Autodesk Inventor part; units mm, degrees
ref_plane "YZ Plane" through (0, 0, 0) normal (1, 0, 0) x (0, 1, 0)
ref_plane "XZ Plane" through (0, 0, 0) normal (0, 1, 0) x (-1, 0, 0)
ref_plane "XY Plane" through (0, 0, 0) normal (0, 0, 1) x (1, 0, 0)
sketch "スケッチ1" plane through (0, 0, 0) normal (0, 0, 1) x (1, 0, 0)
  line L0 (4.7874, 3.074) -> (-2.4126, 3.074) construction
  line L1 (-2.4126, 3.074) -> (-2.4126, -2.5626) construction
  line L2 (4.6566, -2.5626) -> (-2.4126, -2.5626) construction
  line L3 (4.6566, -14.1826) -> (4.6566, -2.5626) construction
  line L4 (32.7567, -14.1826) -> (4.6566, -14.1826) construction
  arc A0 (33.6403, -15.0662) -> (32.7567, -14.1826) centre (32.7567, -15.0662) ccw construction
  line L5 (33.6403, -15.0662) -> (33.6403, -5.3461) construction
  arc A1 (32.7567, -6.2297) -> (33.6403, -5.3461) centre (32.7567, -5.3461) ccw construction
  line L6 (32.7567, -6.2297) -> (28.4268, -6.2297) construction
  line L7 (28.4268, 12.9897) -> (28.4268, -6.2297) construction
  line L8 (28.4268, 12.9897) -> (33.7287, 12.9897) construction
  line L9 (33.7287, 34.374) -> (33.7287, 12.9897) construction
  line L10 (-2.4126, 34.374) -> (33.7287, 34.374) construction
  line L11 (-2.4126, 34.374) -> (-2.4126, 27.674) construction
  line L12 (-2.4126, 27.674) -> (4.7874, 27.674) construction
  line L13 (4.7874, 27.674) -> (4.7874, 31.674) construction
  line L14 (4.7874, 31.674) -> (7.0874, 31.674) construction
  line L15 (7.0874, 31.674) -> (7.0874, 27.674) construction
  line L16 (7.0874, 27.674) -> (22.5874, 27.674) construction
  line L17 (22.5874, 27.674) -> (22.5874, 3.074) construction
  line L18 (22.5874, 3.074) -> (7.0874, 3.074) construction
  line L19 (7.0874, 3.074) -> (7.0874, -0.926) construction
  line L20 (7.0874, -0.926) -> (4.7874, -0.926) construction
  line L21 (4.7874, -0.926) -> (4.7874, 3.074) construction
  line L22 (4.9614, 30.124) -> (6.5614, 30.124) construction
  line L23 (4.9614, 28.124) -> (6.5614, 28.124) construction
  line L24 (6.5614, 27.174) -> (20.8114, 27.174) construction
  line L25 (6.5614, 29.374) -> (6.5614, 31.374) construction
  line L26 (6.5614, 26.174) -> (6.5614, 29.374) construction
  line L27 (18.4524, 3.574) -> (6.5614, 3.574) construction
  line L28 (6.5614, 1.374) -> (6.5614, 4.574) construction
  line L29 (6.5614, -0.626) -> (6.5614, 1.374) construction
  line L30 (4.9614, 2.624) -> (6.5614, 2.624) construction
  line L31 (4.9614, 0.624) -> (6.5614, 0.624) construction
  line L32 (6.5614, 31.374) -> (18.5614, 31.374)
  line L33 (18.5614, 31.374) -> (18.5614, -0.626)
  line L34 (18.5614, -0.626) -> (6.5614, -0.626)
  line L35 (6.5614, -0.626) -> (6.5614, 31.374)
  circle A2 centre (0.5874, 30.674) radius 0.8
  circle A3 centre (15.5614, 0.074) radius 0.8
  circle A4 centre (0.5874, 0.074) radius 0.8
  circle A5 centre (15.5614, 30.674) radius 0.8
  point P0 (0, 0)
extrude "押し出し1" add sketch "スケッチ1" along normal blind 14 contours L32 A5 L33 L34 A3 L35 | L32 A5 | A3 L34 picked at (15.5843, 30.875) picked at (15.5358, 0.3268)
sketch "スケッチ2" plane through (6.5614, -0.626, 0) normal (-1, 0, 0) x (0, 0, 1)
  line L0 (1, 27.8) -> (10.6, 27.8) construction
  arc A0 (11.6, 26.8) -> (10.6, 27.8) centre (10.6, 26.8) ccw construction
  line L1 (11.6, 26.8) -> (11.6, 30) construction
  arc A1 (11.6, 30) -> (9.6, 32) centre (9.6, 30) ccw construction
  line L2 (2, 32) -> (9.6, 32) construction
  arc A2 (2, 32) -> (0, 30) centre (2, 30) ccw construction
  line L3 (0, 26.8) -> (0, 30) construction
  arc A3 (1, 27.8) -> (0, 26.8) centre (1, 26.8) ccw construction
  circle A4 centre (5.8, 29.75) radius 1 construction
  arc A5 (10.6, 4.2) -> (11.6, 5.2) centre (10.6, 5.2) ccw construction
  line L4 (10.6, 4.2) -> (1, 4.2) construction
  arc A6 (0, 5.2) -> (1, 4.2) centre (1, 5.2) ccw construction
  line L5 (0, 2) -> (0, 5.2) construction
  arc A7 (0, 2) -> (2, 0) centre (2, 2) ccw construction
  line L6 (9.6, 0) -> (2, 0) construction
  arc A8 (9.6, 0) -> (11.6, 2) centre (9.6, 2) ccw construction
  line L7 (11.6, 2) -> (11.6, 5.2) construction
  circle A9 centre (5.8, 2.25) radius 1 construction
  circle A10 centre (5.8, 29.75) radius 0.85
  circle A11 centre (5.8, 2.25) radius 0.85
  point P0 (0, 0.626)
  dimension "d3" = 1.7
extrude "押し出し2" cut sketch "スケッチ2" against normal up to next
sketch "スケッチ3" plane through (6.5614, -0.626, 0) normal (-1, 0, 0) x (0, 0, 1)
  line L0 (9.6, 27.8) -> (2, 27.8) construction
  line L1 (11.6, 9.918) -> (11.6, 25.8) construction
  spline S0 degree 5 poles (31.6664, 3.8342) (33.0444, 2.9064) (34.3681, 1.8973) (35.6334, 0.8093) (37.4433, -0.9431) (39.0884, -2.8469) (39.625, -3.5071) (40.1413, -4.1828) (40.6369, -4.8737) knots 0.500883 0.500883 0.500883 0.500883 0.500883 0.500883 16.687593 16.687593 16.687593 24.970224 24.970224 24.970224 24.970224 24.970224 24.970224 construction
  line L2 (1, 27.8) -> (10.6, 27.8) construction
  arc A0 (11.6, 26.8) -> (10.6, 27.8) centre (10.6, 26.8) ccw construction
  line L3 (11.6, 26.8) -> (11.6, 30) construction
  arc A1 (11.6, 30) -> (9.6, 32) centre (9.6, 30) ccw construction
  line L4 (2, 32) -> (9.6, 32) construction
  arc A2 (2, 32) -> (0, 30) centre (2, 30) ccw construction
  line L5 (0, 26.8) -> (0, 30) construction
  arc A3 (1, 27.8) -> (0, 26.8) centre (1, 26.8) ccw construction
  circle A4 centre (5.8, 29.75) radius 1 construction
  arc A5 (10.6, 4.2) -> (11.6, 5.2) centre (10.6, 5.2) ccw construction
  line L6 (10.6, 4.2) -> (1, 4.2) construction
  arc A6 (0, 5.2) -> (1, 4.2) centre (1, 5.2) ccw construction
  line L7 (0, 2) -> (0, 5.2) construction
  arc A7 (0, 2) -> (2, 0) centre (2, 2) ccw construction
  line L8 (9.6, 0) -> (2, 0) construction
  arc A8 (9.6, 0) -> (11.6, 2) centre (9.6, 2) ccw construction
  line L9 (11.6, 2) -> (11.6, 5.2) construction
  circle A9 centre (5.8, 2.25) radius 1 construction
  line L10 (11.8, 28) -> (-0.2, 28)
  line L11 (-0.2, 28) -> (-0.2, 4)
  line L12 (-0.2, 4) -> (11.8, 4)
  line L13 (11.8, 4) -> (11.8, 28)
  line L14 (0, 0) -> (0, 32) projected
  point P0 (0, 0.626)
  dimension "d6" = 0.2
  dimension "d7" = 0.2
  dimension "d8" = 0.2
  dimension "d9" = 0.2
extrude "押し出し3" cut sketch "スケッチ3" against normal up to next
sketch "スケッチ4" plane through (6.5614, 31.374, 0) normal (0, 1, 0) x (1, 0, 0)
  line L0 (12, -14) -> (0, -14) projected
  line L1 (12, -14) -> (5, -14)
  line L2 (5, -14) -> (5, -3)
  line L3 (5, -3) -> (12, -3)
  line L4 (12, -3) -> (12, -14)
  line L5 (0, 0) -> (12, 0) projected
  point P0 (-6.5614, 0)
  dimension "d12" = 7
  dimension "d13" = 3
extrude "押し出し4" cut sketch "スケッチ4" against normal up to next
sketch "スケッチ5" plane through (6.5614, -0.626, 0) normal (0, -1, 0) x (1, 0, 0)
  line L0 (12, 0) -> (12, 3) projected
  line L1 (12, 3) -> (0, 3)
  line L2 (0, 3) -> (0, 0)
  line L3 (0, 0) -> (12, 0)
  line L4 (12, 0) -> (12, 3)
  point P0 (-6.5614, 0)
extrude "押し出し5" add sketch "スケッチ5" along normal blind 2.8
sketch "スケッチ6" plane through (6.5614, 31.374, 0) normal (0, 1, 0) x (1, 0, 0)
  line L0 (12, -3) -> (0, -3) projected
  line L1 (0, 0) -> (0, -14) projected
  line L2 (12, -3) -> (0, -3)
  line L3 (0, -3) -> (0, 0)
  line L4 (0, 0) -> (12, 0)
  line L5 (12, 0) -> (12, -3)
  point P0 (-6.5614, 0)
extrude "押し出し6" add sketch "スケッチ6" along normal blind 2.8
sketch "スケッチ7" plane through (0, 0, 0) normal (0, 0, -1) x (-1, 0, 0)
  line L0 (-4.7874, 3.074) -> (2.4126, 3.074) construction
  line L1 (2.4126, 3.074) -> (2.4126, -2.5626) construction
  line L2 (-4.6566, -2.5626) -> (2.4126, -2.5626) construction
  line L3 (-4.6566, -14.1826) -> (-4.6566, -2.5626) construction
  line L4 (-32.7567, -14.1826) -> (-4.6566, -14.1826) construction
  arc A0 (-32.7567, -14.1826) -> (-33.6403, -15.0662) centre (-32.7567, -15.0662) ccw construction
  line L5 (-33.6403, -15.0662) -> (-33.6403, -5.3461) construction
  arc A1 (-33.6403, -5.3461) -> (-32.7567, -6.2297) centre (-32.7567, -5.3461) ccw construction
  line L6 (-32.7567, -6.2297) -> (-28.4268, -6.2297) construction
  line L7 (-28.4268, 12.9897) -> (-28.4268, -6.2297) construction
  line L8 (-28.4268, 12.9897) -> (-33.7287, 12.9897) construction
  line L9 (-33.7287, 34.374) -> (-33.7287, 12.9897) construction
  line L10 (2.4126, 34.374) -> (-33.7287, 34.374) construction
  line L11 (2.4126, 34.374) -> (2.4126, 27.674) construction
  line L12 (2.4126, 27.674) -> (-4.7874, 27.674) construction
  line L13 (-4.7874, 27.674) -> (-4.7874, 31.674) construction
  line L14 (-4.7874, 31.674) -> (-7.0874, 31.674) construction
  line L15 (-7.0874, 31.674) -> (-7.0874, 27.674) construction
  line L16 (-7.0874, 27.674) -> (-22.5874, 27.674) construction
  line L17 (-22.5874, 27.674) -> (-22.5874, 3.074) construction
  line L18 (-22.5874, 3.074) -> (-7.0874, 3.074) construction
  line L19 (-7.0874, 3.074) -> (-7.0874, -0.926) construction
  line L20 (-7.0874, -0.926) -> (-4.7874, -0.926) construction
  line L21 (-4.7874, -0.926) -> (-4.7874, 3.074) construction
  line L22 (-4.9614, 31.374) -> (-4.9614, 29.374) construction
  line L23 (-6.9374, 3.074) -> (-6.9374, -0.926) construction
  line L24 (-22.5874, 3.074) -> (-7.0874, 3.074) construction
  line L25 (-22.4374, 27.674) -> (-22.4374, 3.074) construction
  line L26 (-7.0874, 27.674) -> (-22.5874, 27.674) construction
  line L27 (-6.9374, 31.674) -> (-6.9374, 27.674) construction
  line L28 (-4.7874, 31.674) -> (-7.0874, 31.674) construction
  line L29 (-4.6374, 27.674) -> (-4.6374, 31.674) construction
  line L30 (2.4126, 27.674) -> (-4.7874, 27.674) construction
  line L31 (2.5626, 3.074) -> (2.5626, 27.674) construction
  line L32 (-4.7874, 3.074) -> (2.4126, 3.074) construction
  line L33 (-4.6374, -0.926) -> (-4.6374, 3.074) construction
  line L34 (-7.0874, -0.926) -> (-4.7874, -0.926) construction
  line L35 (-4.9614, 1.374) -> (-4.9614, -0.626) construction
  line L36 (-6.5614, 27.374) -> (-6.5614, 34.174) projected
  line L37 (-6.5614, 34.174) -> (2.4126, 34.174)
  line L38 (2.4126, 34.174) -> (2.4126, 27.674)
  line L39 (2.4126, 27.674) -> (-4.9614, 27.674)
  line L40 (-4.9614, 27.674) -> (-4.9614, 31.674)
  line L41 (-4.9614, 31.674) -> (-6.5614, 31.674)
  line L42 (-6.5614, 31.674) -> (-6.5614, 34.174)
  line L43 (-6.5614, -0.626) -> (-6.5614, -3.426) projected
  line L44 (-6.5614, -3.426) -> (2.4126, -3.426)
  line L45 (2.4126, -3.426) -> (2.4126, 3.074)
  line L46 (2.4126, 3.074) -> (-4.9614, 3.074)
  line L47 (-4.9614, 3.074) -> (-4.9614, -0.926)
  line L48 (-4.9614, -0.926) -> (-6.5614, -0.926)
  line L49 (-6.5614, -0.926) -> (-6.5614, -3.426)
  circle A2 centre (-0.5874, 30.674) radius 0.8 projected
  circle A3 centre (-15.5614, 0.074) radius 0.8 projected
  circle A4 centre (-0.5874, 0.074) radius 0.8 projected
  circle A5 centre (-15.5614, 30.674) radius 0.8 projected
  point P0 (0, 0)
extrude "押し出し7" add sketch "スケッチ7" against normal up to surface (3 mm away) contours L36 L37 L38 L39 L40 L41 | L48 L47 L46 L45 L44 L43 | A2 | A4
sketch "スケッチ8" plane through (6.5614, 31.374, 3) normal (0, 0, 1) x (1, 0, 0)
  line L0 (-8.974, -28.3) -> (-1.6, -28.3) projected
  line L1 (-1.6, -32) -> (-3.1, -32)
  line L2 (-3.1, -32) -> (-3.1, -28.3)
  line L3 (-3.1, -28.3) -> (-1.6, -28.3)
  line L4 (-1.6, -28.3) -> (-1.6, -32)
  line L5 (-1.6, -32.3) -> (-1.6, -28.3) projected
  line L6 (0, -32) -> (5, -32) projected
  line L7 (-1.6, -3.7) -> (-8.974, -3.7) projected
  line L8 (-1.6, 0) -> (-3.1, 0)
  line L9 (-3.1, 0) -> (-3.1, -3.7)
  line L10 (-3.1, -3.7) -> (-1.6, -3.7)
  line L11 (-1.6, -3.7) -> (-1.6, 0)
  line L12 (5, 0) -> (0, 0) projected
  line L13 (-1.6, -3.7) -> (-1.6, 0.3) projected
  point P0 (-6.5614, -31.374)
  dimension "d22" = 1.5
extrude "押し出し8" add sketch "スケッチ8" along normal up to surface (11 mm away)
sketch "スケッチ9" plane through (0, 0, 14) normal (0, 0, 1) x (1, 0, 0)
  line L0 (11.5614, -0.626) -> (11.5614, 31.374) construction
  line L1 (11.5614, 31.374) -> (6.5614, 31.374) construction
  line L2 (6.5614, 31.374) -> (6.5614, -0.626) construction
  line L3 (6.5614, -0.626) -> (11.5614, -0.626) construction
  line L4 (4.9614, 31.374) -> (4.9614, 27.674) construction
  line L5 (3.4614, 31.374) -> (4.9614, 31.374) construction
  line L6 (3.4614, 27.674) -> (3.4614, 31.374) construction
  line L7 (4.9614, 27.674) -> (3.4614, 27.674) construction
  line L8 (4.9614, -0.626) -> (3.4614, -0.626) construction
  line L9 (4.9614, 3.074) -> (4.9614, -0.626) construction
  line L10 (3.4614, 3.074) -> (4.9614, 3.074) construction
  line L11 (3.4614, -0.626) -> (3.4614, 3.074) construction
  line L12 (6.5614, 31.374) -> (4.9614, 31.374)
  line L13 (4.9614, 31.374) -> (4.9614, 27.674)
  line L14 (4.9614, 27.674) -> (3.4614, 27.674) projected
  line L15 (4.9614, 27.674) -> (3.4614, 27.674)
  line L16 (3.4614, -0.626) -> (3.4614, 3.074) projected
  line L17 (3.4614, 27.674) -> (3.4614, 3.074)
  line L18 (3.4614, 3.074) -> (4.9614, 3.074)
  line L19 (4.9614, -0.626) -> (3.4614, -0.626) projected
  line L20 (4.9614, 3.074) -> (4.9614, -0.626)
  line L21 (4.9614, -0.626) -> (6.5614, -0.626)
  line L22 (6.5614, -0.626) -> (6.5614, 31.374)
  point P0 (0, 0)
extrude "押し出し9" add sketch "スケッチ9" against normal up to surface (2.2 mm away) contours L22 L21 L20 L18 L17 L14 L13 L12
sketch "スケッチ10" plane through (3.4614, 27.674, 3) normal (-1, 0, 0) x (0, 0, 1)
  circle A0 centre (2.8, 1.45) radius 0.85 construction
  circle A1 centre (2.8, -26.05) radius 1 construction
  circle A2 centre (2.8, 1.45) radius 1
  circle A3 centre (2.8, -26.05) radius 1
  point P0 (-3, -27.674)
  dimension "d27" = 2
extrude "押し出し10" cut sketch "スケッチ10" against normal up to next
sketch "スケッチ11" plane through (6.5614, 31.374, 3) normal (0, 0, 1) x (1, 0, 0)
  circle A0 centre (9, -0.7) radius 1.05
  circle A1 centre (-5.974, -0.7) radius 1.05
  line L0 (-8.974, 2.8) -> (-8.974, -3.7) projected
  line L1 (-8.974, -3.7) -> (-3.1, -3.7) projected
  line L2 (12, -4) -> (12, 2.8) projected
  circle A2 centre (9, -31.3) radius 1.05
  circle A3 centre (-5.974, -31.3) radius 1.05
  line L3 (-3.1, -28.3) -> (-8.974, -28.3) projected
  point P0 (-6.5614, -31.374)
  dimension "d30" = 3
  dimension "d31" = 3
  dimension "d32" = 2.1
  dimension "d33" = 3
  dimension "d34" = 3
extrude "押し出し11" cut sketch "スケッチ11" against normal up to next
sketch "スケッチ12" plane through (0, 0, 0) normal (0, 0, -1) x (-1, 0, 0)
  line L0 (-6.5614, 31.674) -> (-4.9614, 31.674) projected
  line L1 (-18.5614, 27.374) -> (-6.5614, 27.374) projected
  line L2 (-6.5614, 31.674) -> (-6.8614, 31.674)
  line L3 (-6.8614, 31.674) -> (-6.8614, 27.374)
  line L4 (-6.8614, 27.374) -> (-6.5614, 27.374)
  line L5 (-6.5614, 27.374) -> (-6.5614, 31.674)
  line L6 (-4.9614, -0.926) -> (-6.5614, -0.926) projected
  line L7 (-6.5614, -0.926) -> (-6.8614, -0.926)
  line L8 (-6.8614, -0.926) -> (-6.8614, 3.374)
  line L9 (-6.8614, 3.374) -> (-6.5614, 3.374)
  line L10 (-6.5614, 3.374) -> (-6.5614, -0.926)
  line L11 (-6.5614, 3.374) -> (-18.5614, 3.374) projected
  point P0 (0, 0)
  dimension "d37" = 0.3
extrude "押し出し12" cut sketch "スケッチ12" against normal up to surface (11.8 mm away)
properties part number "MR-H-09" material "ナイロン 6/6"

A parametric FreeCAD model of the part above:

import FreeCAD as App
import Part
import Sketcher
Q = App.Units.Quantity


def add_polygon(sketch, points):
    """Adds a closed chain of lines whose ends are joined by coincident constraints."""
    first, n = sketch.GeometryCount, len(points)
    for a, b in zip(points, points[1:] + points[:1]):
        sketch.addGeometry(Part.LineSegment(App.Vector(*a, 0), App.Vector(*b, 0)), False)
    for i in range(n):
        sketch.addConstraint(Sketcher.Constraint("Coincident", first + i, 2, first + (i + 1) % n, 1))

doc = App.newDocument("Part")
params = doc.addObject("Spreadsheet::Sheet", "Params")
for row, (alias, value) in enumerate([
    ("sketch1_width", "12 mm"),
    ("sketch1_height", "32 mm"),
    ("pad1_length", "14 mm"),
    ("sketch2_diameter", "1.7 mm"),
    ("sketch3_width", "24 mm"),
    ("sketch3_height", "12 mm"),
    ("sketch4_width", "7 mm"),
    ("sketch4_height", "11 mm"),
    ("pocket3_length", "32 mm"),
    ("sketch5_width", "12 mm"),
    ("sketch5_height", "3 mm"),
    ("pad2_length", "2.8 mm"),
    ("sketch6_width", "12 mm"),
    ("sketch6_height", "3 mm"),
    ("pad3_length", "2.8 mm"),
    ("sketch7_height", "4 mm"),
    ("sketch7_width", "1.6 mm"),
    ("sketch7_height2", "2.5 mm"),
    ("pad4_length", "3 mm"),
    ("sketch8_width", "1.5 mm"),
    ("sketch8_height", "3.7 mm"),
    ("pad5_length", "11 mm"),
    ("sketch9_height", "32 mm"),
    ("sketch9_width", "1.6 mm"),
    ("sketch9_width2", "1.5 mm"),
    ("sketch9_height2", "3.7 mm"),
    ("pad6_length", "2.2 mm"),
    ("sketch10_diameter", "2 mm"),
    ("pocket4_length", "1.5 mm"),
    ("sketch11_diameter", "2.1 mm"),
    ("pocket5_length", "3 mm"),
    ("sketch12_width", "0.3 mm"),
    ("sketch12_height", "4.3 mm"),
    ("pocket6_length", "11.8 mm"),
], start=1):
    params.set(f"A{row}", alias)
    params.set(f"B{row}", "=" + value)
    params.setAlias(f"B{row}", alias)

body = doc.addObject("PartDesign::Body", "Body")

# Sketch on XY plane
sketch1 = body.newObject("Sketcher::SketchObject", "Sketch")
sketch1.AttachmentSupport = (doc.getObject("XY_Plane"), [""])
sketch1.MapMode = "FlatFace"
add_polygon(sketch1, [(7, 31), (7, -1), (19, -1), (19, 31)])  # lines 0-3
sketch1.addConstraint([
    Sketcher.Constraint("Vertical", 0),
    Sketcher.Constraint("Horizontal", 1),
    Sketcher.Constraint("Vertical", 2),
    Sketcher.Constraint("Horizontal", 3),
    Sketcher.Constraint("DistanceX", 1, 1, 1, 2, Q("12 mm")),
    Sketcher.Constraint("DistanceY", 0, 2, 0, 1, Q("32 mm")),
    Sketcher.Constraint("DistanceY", 0, 2, -1, 1, Q("0.626 mm")),
    Sketcher.Constraint("DistanceX", -1, 1, 0, 2, Q("6.5614 mm")),
])
sketch1.setExpression("Constraints[8]", "Params.sketch1_width")
sketch1.setExpression("Constraints[9]", "Params.sketch1_height")
pad1 = body.newObject("PartDesign::Pad", "Pad")
pad1.Profile = sketch1
pad1.setExpression("Length", "Params.pad1_length")

# Sketch on YZ plane
sketch2 = body.newObject("Sketcher::SketchObject", "Sketch001")
sketch2.AttachmentSupport = (doc.getObject("YZ_Plane"), [""])
sketch2.MapMode = "FlatFace"
sketch2.AttachmentOffset = App.Placement(App.Vector(0, 0, 6.5614), App.Rotation())
sketch2.addGeometry([
    Part.Circle(App.Vector(29.1, 5.8, 0), App.Vector(0, 0, 1), 0.8),
    Part.Circle(App.Vector(1.6, 5.8, 0), App.Vector(0, 0, 1), 0.8),
], False)
sketch2.addConstraint([
    Sketcher.Constraint("Equal", 0, 1),
    Sketcher.Constraint("Horizontal", 0, 3, 1, 3),
    Sketcher.Constraint("Diameter", 0, Q("1.7 mm")),
    Sketcher.Constraint("DistanceY", -1, 1, 0, 3, Q("5.8 mm")),
    Sketcher.Constraint("DistanceX", 1, 3, 0, 3, Q("27.5 mm")),
    Sketcher.Constraint("DistanceX", -1, 1, 0, 3, Q("29.124 mm")),
])
sketch2.setExpression("Constraints[2]", "Params.sketch2_diameter")
pocket1 = body.newObject("PartDesign::Pocket", "Pocket")
pocket1.Profile = sketch2
pocket1.Type = "UpToFirst"
pocket1.Reversed = True

# Sketch on YZ plane
sketch3 = body.newObject("Sketcher::SketchObject", "Sketch002")
sketch3.AttachmentSupport = (doc.getObject("YZ_Plane"), [""])
sketch3.MapMode = "FlatFace"
sketch3.AttachmentOffset = App.Placement(App.Vector(0, 0, 6.5614), App.Rotation())
add_polygon(sketch3, [(3, 12), (27, 12), (27, 0), (3, 0)])  # lines 0-3
sketch3.addConstraint([
    Sketcher.Constraint("Horizontal", 0),
    Sketcher.Constraint("Vertical", 1),
    Sketcher.Constraint("Horizontal", 2),
    Sketcher.Constraint("Vertical", 3),
    Sketcher.Constraint("DistanceY", 1, 2, -1, 1, Q("0.2 mm")),
    Sketcher.Constraint("DistanceX", 0, 1, 0, 2, Q("24 mm")),
    Sketcher.Constraint("DistanceY", 1, 2, 1, 1, Q("12 mm")),
    Sketcher.Constraint("DistanceX", -1, 1, 0, 2, Q("27.374 mm")),
])
sketch3.setExpression("Constraints[9]", "Params.sketch3_width")
sketch3.setExpression("Constraints[10]", "Params.sketch3_height")
pocket2 = body.newObject("PartDesign::Pocket", "Pocket001")
pocket2.Profile = sketch3
pocket2.Type = "UpToFirst"
pocket2.Reversed = True

# Sketch on XZ plane
sketch4 = body.newObject("Sketcher::SketchObject", "Sketch003")
sketch4.AttachmentSupport = (doc.getObject("XZ_Plane"), [""])
sketch4.MapMode = "FlatFace"
sketch4.AttachmentOffset = App.Placement(App.Vector(0, 0, -31.374), App.Rotation())
add_polygon(sketch4, [(12, 14), (19, 14), (19, 3), (12, 3)])  # lines 0-3
sketch4.addConstraint([
    Sketcher.Constraint("Horizontal", 0),
    Sketcher.Constraint("Vertical", 1),
    Sketcher.Constraint("Horizontal", 2),
    Sketcher.Constraint("Vertical", 3),
    Sketcher.Constraint("DistanceX", 0, 1, 0, 2, Q("7 mm")),
    Sketcher.Constraint("DistanceY", -1, 1, 1, 2, Q("3 mm")),
    Sketcher.Constraint("DistanceY", 1, 2, 1, 1, Q("11 mm")),
    Sketcher.Constraint("DistanceX", -1, 1, 0, 2, Q("18.5614 mm")),
])
sketch4.setExpression("Constraints[8]", "Params.sketch4_width")
sketch4.setExpression("Constraints[10]", "Params.sketch4_height")
pocket3 = body.newObject("PartDesign::Pocket", "Pocket002")
pocket3.Profile = sketch4
pocket3.setExpression("Length", "Params.pocket3_length")
pocket3.Reversed = True

# Sketch on XZ plane
sketch5 = body.newObject("Sketcher::SketchObject", "Sketch004")
sketch5.AttachmentSupport = (doc.getObject("XZ_Plane"), [""])
sketch5.MapMode = "FlatFace"
sketch5.AttachmentOffset = App.Placement(App.Vector(0, 0, 0.626), App.Rotation())
add_polygon(sketch5, [(6.6, 0), (18.6, 0), (18.6, 3), (6.6, 3)])  # lines 0-3
sketch5.addConstraint([
    Sketcher.Constraint("Horizontal", 0),
    Sketcher.Constraint("Vertical", 1),
    Sketcher.Constraint("Horizontal", 2),
    Sketcher.Constraint("Vertical", 3),
    Sketcher.Constraint("PointOnObject", 0, 2, -1),
    Sketcher.Constraint("DistanceX", 0, 1, 0, 2, Q("12 mm")),
    Sketcher.Constraint("DistanceY", 1, 1, 1, 2, Q("3 mm")),
    Sketcher.Constraint("DistanceX", -1, 1, 0, 2, Q("18.5614 mm")),
])
sketch5.setExpression("Constraints[9]", "Params.sketch5_width")
sketch5.setExpression("Constraints[10]", "Params.sketch5_height")
pad2 = body.newObject("PartDesign::Pad", "Pad001")
pad2.Profile = sketch5
pad2.setExpression("Length", "Params.pad2_length")

# Sketch on XZ plane
sketch6 = body.newObject("Sketcher::SketchObject", "Sketch005")
sketch6.AttachmentSupport = (doc.getObject("XZ_Plane"), [""])
sketch6.MapMode = "FlatFace"
sketch6.AttachmentOffset = App.Placement(App.Vector(0, 0, -31.374), App.Rotation())
add_polygon(sketch6, [(6.6, 3), (18.6, 3), (18.6, 0), (6.6, 0)])  # lines 0-3
sketch6.addConstraint([
    Sketcher.Constraint("Horizontal", 0),
    Sketcher.Constraint("Vertical", 1),
    Sketcher.Constraint("Horizontal", 2),
    Sketcher.Constraint("Vertical", 3),
    Sketcher.Constraint("PointOnObject", 1, 2, -1),
    Sketcher.Constraint("DistanceX", 0, 1, 0, 2, Q("12 mm")),
    Sketcher.Constraint("DistanceY", 1, 2, 1, 1, Q("3 mm")),
    Sketcher.Constraint("DistanceX", -1, 1, 0, 2, Q("18.5614 mm")),
])
sketch6.setExpression("Constraints[9]", "Params.sketch6_width")
sketch6.setExpression("Constraints[10]", "Params.sketch6_height")
pad3 = body.newObject("PartDesign::Pad", "Pad002")
pad3.Profile = sketch6
pad3.setExpression("Length", "Params.pad3_length")
pad3.Reversed = True

# Sketch on XY plane
sketch7 = body.newObject("Sketcher::SketchObject", "Sketch006")
sketch7.AttachmentSupport = (doc.getObject("XY_Plane"), [""])
sketch7.MapMode = "FlatFace"
add_polygon(sketch7, [(6.6, 34.2), (6.6, 31.7), (5, 31.7), (5, 27.7), (-2.4, 27.7), (-2.4, 34.2)])  # lines 0-5
add_polygon(sketch7, [(5, -0.9), (6.6, -0.9), (6.6, -3.4), (-2.4, -3.4), (-2.4, 3.1), (5, 3.1)])  # lines 6-11
sketch7.addConstraint([
    Sketcher.Constraint("Vertical", 0),
    Sketcher.Constraint("Horizontal", 1),
    Sketcher.Constraint("Vertical", 2),
    Sketcher.Constraint("Horizontal", 3),
    Sketcher.Constraint("Vertical", 4),
    Sketcher.Constraint("Horizontal", 5),
    Sketcher.Constraint("Horizontal", 6),
    Sketcher.Constraint("Vertical", 7),
    Sketcher.Constraint("Horizontal", 8),
    Sketcher.Constraint("Vertical", 9),
    Sketcher.Constraint("Horizontal", 10),
    Sketcher.Constraint("Vertical", 11),
    Sketcher.Constraint("Vertical", 5, 2, 6, 2),
    Sketcher.Constraint("Vertical", 4, 2, 8, 2),
    Sketcher.Constraint("Vertical", 2, 2, 10, 2),
    Sketcher.Constraint("Equal", 0, 7),
    Sketcher.Constraint("Equal", 4, 9),
    Sketcher.Constraint("DistanceY", 2, 2, 2, 1, Q("4 mm")),
    Sketcher.Constraint("DistanceX", 1, 2, 1, 1, Q("1.6 mm")),
    Sketcher.Constraint("DistanceY", 0, 2, 0, 1, Q("2.5 mm")),
    Sketcher.Constraint("DistanceY", 6, 2, 2, 2, Q("28.6 mm")),
    Sketcher.Constraint("DistanceX", 3, 2, 3, 1, Q("7.374 mm")),
    Sketcher.Constraint("DistanceY", -1, 1, 0, 2, Q("31.674 mm")),
    Sketcher.Constraint("DistanceX", -1, 1, 0, 2, Q("6.5614 mm")),
])
sketch7.setExpression("Constraints[29]", "Params.sketch7_height")
sketch7.setExpression("Constraints[30]", "Params.sketch7_width")
sketch7.setExpression("Constraints[31]", "Params.sketch7_height2")
pad4 = body.newObject("PartDesign::Pad", "Pad003")
pad4.Profile = sketch7
pad4.setExpression("Length", "Params.pad4_length")

# Sketch on XY plane
sketch8 = body.newObject("Sketcher::SketchObject", "Sketch007")
sketch8.AttachmentSupport = (doc.getObject("XY_Plane"), [""])
sketch8.MapMode = "FlatFace"
sketch8.AttachmentOffset = App.Placement(App.Vector(0, 0, 3), App.Rotation())
add_polygon(sketch8, [(5, 3.1), (3.5, 3.1), (3.5, -0.6), (5, -0.6)])  # lines 0-3
add_polygon(sketch8, [(3.5, 27.7), (5, 27.7), (5, 31.4), (3.5, 31.4)])  # lines 4-7
sketch8.addConstraint([
    Sketcher.Constraint("Horizontal", 0),
    Sketcher.Constraint("Vertical", 1),
    Sketcher.Constraint("Horizontal", 2),
    Sketcher.Constraint("Vertical", 3),
    Sketcher.Constraint("Horizontal", 4),
    Sketcher.Constraint("Vertical", 5),
    Sketcher.Constraint("Horizontal", 6),
    Sketcher.Constraint("Vertical", 7),
    Sketcher.Constraint("Vertical", 3, 2, 4, 2),
    Sketcher.Constraint("Vertical", 1, 2, 6, 2),
    Sketcher.Constraint("Equal", 3, 5),
    Sketcher.Constraint("DistanceX", 0, 2, 0, 1, Q("1.5 mm")),
    Sketcher.Constraint("DistanceY", 1, 2, 1, 1, Q("3.7 mm")),
    Sketcher.Constraint("DistanceY", 2, 2, 5, 2, Q("32 mm")),
    Sketcher.Constraint("DistanceY", -1, 1, 0, 2, Q("3.074 mm")),
    Sketcher.Constraint("DistanceX", -1, 1, 0, 2, Q("3.4614 mm")),
])
sketch8.setExpression("Constraints[19]", "Params.sketch8_width")
sketch8.setExpression("Constraints[20]", "Params.sketch8_height")
pad5 = body.newObject("PartDesign::Pad", "Pad004")
pad5.Profile = sketch8
pad5.setExpression("Length", "Params.pad5_length")

# Sketch on XY plane
sketch9 = body.newObject("Sketcher::SketchObject", "Sketch008")
sketch9.AttachmentSupport = (doc.getObject("XY_Plane"), [""])
sketch9.MapMode = "FlatFace"
sketch9.AttachmentOffset = App.Placement(App.Vector(0, 0, 14), App.Rotation())
add_polygon(sketch9, [(6.6, -0.6), (6.6, 31.4), (5, 31.4), (5, 27.7), (3.5, 27.7), (3.5, 3.1), (5, 3.1), (5, -0.6)])  # lines 0-7
sketch9.addConstraint([
    Sketcher.Constraint("Vertical", 0),
    Sketcher.Constraint("Horizontal", 1),
    Sketcher.Constraint("Vertical", 2),
    Sketcher.Constraint("Horizontal", 3),
    Sketcher.Constraint("Vertical", 4),
    Sketcher.Constraint("Horizontal", 5),
    Sketcher.Constraint("Vertical", 6),
    Sketcher.Constraint("Horizontal", 7),
    Sketcher.Constraint("Vertical", 2, 2, 5, 2),
    Sketcher.Constraint("Equal", 2, 6),
    Sketcher.Constraint("DistanceY", 0, 1, 0, 2, Q("32 mm")),
    Sketcher.Constraint("DistanceX", 1, 2, 1, 1, Q("1.6 mm")),
    Sketcher.Constraint("DistanceX", 3, 2, 3, 1, Q("1.5 mm")),
    Sketcher.Constraint("DistanceY", 2, 2, 2, 1, Q("3.7 mm")),
    Sketcher.Constraint("DistanceY", -1, 1, 0, 2, Q("31.374 mm")),
    Sketcher.Constraint("DistanceX", -1, 1, 0, 2, Q("6.5614 mm")),
])
sketch9.setExpression("Constraints[18]", "Params.sketch9_height")
sketch9.setExpression("Constraints[19]", "Params.sketch9_width")
sketch9.setExpression("Constraints[20]", "Params.sketch9_width2")
sketch9.setExpression("Constraints[21]", "Params.sketch9_height2")
pad6 = body.newObject("PartDesign::Pad", "Pad005")
pad6.Profile = sketch9
pad6.setExpression("Length", "Params.pad6_length")
pad6.Reversed = True

# Sketch on YZ plane
sketch10 = body.newObject("Sketcher::SketchObject", "Sketch009")
sketch10.AttachmentSupport = (doc.getObject("YZ_Plane"), [""])
sketch10.MapMode = "FlatFace"
sketch10.AttachmentOffset = App.Placement(App.Vector(0, 0, 3.4614), App.Rotation())
sketch10.addGeometry([
    Part.Circle(App.Vector(29.1, 5.8, 0), App.Vector(0, 0, 1), 1),
    Part.Circle(App.Vector(1.6, 5.8, 0), App.Vector(0, 0, 1), 1),
], False)
sketch10.addConstraint([
    Sketcher.Constraint("Equal", 0, 1),
    Sketcher.Constraint("Horizontal", 0, 3, 1, 3),
    Sketcher.Constraint("Diameter", 0, Q("2 mm")),
    Sketcher.Constraint("DistanceY", -1, 1, 0, 3, Q("5.8 mm")),
    Sketcher.Constraint("DistanceX", 1, 3, 0, 3, Q("27.5 mm")),
    Sketcher.Constraint("DistanceX", -1, 1, 0, 3, Q("29.124 mm")),
])
sketch10.setExpression("Constraints[2]", "Params.sketch10_diameter")
pocket4 = body.newObject("PartDesign::Pocket", "Pocket003")
pocket4.Profile = sketch10
pocket4.setExpression("Length", "Params.pocket4_length")
pocket4.Reversed = True

# Sketch on XY plane
sketch11 = body.newObject("Sketcher::SketchObject", "Sketch010")
sketch11.AttachmentSupport = (doc.getObject("XY_Plane"), [""])
sketch11.MapMode = "FlatFace"
sketch11.AttachmentOffset = App.Placement(App.Vector(0, 0, 3), App.Rotation())
sketch11.addGeometry([
    Part.Circle(App.Vector(15.6, 30.7, 0), App.Vector(0, 0, 1), 1.1),
    Part.Circle(App.Vector(0.6, 30.7, 0), App.Vector(0, 0, 1), 1.1),
    Part.Circle(App.Vector(15.6, 0.1, 0), App.Vector(0, 0, 1), 1.1),
    Part.Circle(App.Vector(0.6, 0.1, 0), App.Vector(0, 0, 1), 1.1),
], False)
sketch11.addConstraint([
    Sketcher.Constraint("Equal", 0, 1),
    Sketcher.Constraint("Equal", 1, 2),
    Sketcher.Constraint("Equal", 2, 3),
    Sketcher.Constraint("Horizontal", 0, 3, 1, 3),
    Sketcher.Constraint("Horizontal", 2, 3, 3, 3),
    Sketcher.Constraint("Vertical", 0, 3, 2, 3),
    Sketcher.Constraint("Vertical", 1, 3, 3, 3),
    Sketcher.Constraint("Diameter", 0, Q("2.1 mm")),
    Sketcher.Constraint("DistanceY", 2, 3, 0, 3, Q("30.6 mm")),
    Sketcher.Constraint("DistanceY", -1, 1, 0, 3, Q("30.674 mm")),
    Sketcher.Constraint("DistanceX", 1, 3, 0, 3, Q("14.974 mm")),
    Sketcher.Constraint("DistanceX", -1, 1, 0, 3, Q("15.5614 mm")),
])
sketch11.setExpression("Constraints[7]", "Params.sketch11_diameter")
pocket5 = body.newObject("PartDesign::Pocket", "Pocket004")
pocket5.Profile = sketch11
pocket5.setExpression("Length", "Params.pocket5_length")

# Sketch on XY plane
sketch12 = body.newObject("Sketcher::SketchObject", "Sketch011")
sketch12.AttachmentSupport = (doc.getObject("XY_Plane"), [""])
sketch12.MapMode = "FlatFace"
add_polygon(sketch12, [(6.86, 31.67), (6.86, 27.37), (6.56, 27.37), (6.56, 31.67)])  # lines 0-3
add_polygon(sketch12, [(6.86, -0.93), (6.56, -0.93), (6.56, 3.37), (6.86, 3.37)])  # lines 4-7
sketch12.addConstraint([
    Sketcher.Constraint("Vertical", 0),
    Sketcher.Constraint("Horizontal", 1),
    Sketcher.Constraint("Vertical", 2),
    Sketcher.Constraint("Horizontal", 3),
    Sketcher.Constraint("Horizontal", 4),
    Sketcher.Constraint("Vertical", 5),
    Sketcher.Constraint("Horizontal", 6),
    Sketcher.Constraint("Vertical", 7),
    Sketcher.Constraint("Vertical", 2, 2, 4, 2),
    Sketcher.Constraint("Vertical", 3, 2, 6, 2),
    Sketcher.Constraint("Equal", 2, 5),
    Sketcher.Constraint("DistanceX", 1, 2, 1, 1, Q("0.3 mm")),
    Sketcher.Constraint("DistanceY", 0, 2, 0, 1, Q("4.3 mm")),
    Sketcher.Constraint("DistanceY", 5, 2, 1, 2, Q("24 mm")),
    Sketcher.Constraint("DistanceY", -1, 1, 0, 2, Q("27.374 mm")),
    Sketcher.Constraint("DistanceX", -1, 1, 0, 2, Q("6.8614 mm")),
])
sketch12.setExpression("Constraints[19]", "Params.sketch12_width")
sketch12.setExpression("Constraints[20]", "Params.sketch12_height")
pocket6 = body.newObject("PartDesign::Pocket", "Pocket005")
pocket6.Profile = sketch12
pocket6.setExpression("Length", "Params.pocket6_length")
pocket6.Reversed = True

doc.recompute()
